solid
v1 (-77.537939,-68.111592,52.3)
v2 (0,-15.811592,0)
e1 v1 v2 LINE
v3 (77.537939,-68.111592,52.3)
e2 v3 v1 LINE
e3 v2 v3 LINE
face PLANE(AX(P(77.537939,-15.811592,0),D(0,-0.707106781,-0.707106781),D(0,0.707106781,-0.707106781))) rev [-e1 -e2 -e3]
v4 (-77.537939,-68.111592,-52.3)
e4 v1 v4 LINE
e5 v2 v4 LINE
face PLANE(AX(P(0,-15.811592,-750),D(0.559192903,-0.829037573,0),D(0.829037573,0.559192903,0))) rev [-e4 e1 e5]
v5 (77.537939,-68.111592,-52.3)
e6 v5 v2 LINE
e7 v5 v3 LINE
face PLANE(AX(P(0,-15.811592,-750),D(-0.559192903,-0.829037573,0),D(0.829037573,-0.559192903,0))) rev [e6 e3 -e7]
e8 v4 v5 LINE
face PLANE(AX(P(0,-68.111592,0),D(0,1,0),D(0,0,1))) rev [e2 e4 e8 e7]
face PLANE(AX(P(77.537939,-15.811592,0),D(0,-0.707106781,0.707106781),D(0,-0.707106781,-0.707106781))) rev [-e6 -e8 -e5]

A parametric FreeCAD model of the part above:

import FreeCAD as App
import Part
import Sketcher
Q = App.Units.Quantity

doc = App.newDocument("Part")
params = doc.addObject("Spreadsheet::Sheet", "Params")
for row, (alias, value) in enumerate([
    ("sketch1_width", "2000 mm"),
    ("sketch1_height", "1500 mm"),
    ("pad1_length", "63.5 mm"),
    ("sketch2_width", "2000 mm"),
    ("sketch3_width", "751 mm"),
    ("sketch3_height", "1500 mm"),
], start=1):
    params.set(f"A{row}", alias)
    params.set(f"B{row}", "=" + value)
    params.setAlias(f"B{row}", alias)

body = doc.addObject("PartDesign::Body", "Body")

sketch1 = body.newObject("Sketcher::SketchObject", "Sketch")
sketch1.AttachmentSupport = (doc.getObject("XZ_Plane"), [""])
sketch1.MapMode = "FlatFace"
sketch1.AttachmentOffset = App.Placement(App.Vector(0, 0, 68.111592), App.Rotation())
sketch1.addGeometry(Part.LineSegment(App.Vector(-1000, -750, 0), App.Vector(-1000, 750, 0)), False)
sketch1.addGeometry(Part.LineSegment(App.Vector(-1000, 750, 0), App.Vector(1000, 750, 0)), False)
sketch1.addGeometry(Part.LineSegment(App.Vector(1000, 750, 0), App.Vector(1000, -750, 0)), False)
sketch1.addGeometry(Part.LineSegment(App.Vector(1000, -750, 0), App.Vector(-1000, -750, 0)), False)
sketch1.addConstraint(Sketcher.Constraint("Coincident", 0, 2, 1, 1))
sketch1.addConstraint(Sketcher.Constraint("Coincident", 1, 2, 2, 1))
sketch1.addConstraint(Sketcher.Constraint("Coincident", 2, 2, 3, 1))
sketch1.addConstraint(Sketcher.Constraint("Coincident", 3, 2, 0, 1))
sketch1.addConstraint(Sketcher.Constraint("Vertical", 0))
sketch1.addConstraint(Sketcher.Constraint("Horizontal", 1))
sketch1.addConstraint(Sketcher.Constraint("Vertical", 2))
sketch1.addConstraint(Sketcher.Constraint("Horizontal", 3))
sketch1.addConstraint(Sketcher.Constraint("Symmetric", 0, 2, 2, 2, -1, 1))
sketch1.addConstraint(Sketcher.Constraint("DistanceX", 1, 1, 1, 2, Q("2000 mm")))
sketch1.addConstraint(Sketcher.Constraint("DistanceY", 0, 1, 0, 2, Q("1500 mm")))
sketch1.setExpression("Constraints[9]", "Params.sketch1_width")
sketch1.setExpression("Constraints[10]", "Params.sketch1_height")
pad1 = body.newObject("PartDesign::Pad", "Pad")
pad1.Profile = sketch1
pad1.setExpression("Length", "Params.pad1_length")
pad1.Reversed = True

sketch2 = body.newObject("Sketcher::SketchObject", "Sketch001")
sketch2.AttachmentSupport = (doc.getObject("XY_Plane"), [""])
sketch2.MapMode = "FlatFace"
sketch2.AttachmentOffset = App.Placement(App.Vector(0, 0, 750), App.Rotation())
sketch2.addGeometry(Part.LineSegment(App.Vector(-1000, -690, 0), App.Vector(0, -16, 0)), False)
sketch2.addGeometry(Part.LineSegment(App.Vector(0, -16, 0), App.Vector(1000, -690, 0)), False)
sketch2.addGeometry(Part.LineSegment(App.Vector(1000, -690, 0), App.Vector(1000, -4, 0)), False)
sketch2.addGeometry(Part.LineSegment(App.Vector(1000, -4, 0), App.Vector(-1000, -4, 0)), False)
sketch2.addGeometry(Part.LineSegment(App.Vector(-1000, -4, 0), App.Vector(-1000, -690, 0)), False)
sketch2.addConstraint(Sketcher.Constraint("Coincident", 0, 2, 1, 1))
sketch2.addConstraint(Sketcher.Constraint("Coincident", 1, 2, 2, 1))
sketch2.addConstraint(Sketcher.Constraint("Coincident", 2, 2, 3, 1))
sketch2.addConstraint(Sketcher.Constraint("Coincident", 3, 2, 4, 1))
sketch2.addConstraint(Sketcher.Constraint("Coincident", 4, 2, 0, 1))
sketch2.addConstraint(Sketcher.Constraint("Vertical", 2))
sketch2.addConstraint(Sketcher.Constraint("Horizontal", 3))
sketch2.addConstraint(Sketcher.Constraint("Vertical", 4))
sketch2.addConstraint(Sketcher.Constraint("Symmetric", 1, 2, 4, 2, -2))
sketch2.addConstraint(Sketcher.Constraint("PointOnObject", 0, 2, -2))
sketch2.addConstraint(Sketcher.Constraint("DistanceX", 3, 2, 3, 1, Q("2000 mm")))
sketch2.addConstraint(Sketcher.Constraint("Angle", 0, Q("34 deg")))
sketch2.addConstraint(Sketcher.Constraint("DistanceY", 0, 2, 2, 2, Q("12.2 mm")))
sketch2.addConstraint(Sketcher.Constraint("DistanceY", 0, 2, -1, 1, Q("15.811592 mm")))
sketch2.setExpression("Constraints[10]", "Params.sketch2_width")
pocket1 = body.newObject("PartDesign::Pocket", "Pocket")
pocket1.Profile = sketch2
pocket1.Type = "ThroughAll"

sketch3 = body.newObject("Sketcher::SketchObject", "Sketch002")
sketch3.AttachmentSupport = (doc.getObject("YZ_Plane"), [""])
sketch3.MapMode = "FlatFace"
sketch3.addGeometry(Part.LineSegment(App.Vector(-766, -750, 0), App.Vector(-16, 0, 0)), False)
sketch3.addGeometry(Part.LineSegment(App.Vector(-16, 0, 0), App.Vector(-766, 750, 0)), False)
sketch3.addGeometry(Part.LineSegment(App.Vector(-766, 750, 0), App.Vector(-15, 750, 0)), False)
sketch3.addGeometry(Part.LineSegment(App.Vector(-15, 750, 0), App.Vector(-15, -750, 0)), False)
sketch3.addGeometry(Part.LineSegment(App.Vector(-15, -750, 0), App.Vector(-766, -750, 0)), False)
sketch3.addConstraint(Sketcher.Constraint("Coincident", 0, 2, 1, 1))
sketch3.addConstraint(Sketcher.Constraint("Coincident", 1, 2, 2, 1))
sketch3.addConstraint(Sketcher.Constraint("Coincident", 2, 2, 3, 1))
sketch3.addConstraint(Sketcher.Constraint("Coincident", 3, 2, 4, 1))
sketch3.addConstraint(Sketcher.Constraint("Coincident", 4, 2, 0, 1))
sketch3.addConstraint(Sketcher.Constraint("Horizontal", 2))
sketch3.addConstraint(Sketcher.Constraint("Vertical", 3))
sketch3.addConstraint(Sketcher.Constraint("Horizontal", 4))
sketch3.addConstraint(Sketcher.Constraint("Symmetric", 1, 2, 4, 2, -1))
sketch3.addConstraint(Sketcher.Constraint("PointOnObject", 0, 2, -1))
sketch3.addConstraint(Sketcher.Constraint("Perpendicular", 0, 1))
sketch3.addConstraint(Sketcher.Constraint("DistanceX", 2, 1, 2, 2, Q("751 mm")))
sketch3.addConstraint(Sketcher.Constraint("DistanceY", 3, 2, 3, 1, Q("1500 mm")))
sketch3.addConstraint(Sketcher.Constraint("DistanceX", 0, 2, -1, 1, Q("15.811592 mm")))
sketch3.setExpression("Constraints[11]", "Params.sketch3_width")
sketch3.setExpression("Constraints[12]", "Params.sketch3_height")
pocket2 = body.newObject("PartDesign::Pocket", "Pocket001")
pocket2.Profile = sketch3
pocket2.Type = "ThroughAll"
pocket2.Midplane = True

doc.recompute()
